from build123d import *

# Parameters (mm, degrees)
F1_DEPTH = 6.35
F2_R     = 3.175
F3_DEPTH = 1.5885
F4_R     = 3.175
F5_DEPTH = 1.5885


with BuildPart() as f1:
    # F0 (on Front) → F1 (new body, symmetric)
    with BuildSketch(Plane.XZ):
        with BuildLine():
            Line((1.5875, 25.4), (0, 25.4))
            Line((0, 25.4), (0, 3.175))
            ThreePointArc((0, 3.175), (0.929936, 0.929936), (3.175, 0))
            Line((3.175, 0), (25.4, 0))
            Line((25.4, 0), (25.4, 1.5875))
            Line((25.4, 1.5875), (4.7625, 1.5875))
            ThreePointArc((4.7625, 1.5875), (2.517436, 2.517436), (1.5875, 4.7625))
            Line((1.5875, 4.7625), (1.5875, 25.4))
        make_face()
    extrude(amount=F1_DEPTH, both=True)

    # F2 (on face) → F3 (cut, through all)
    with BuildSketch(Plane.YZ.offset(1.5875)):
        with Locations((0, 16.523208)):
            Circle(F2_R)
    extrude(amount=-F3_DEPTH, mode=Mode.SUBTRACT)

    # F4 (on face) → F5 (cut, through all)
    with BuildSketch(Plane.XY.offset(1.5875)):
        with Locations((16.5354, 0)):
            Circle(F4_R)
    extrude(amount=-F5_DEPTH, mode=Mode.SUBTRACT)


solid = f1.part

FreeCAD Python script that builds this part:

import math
import FreeCAD as App
import Part
import Sketcher
from FreeCAD import Vector
Q = App.Units.Quantity

doc = App.newDocument("Part")
body = doc.addObject("PartDesign::Body", "Body")

# Sketch on XZ plane
sketch1 = body.newObject("Sketcher::SketchObject", "Sketch")
sketch1.AttachmentSupport = (doc.getObject("XZ_Plane"), [""])
sketch1.MapMode = "FlatFace"
sketch1.addGeometry(Part.LineSegment(Vector(1.6, 25.4, 0), Vector(0, 25.4, 0)), False)
sketch1.addGeometry(Part.LineSegment(Vector(0, 25.4, 0), Vector(0, 3.2, 0)), False)
sketch1.addGeometry(Part.ArcOfCircle(Part.Circle(Vector(3.2, 3.2, 0), Vector(0, 0, 1), 3.2), math.radians(-180), math.radians(-90)), False)
sketch1.addGeometry(Part.LineSegment(Vector(3.2, 0, 0), Vector(25.4, 0, 0)), False)
sketch1.addGeometry(Part.LineSegment(Vector(25.4, 0, 0), Vector(25.4, 1.6, 0)), False)
sketch1.addGeometry(Part.LineSegment(Vector(25.4, 1.6, 0), Vector(4.8, 1.6, 0)), False)
sketch1.addGeometry(Part.ArcOfCircle(Part.Circle(Vector(4.8, 4.8, 0), Vector(0, 0, 1), 3.2), math.radians(-180), math.radians(-90)), False)
sketch1.addGeometry(Part.LineSegment(Vector(1.6, 4.8, 0), Vector(1.6, 25.4, 0)), False)
sketch1.addConstraint(Sketcher.Constraint("Coincident", 0, 2, 1, 1))
sketch1.addConstraint(Sketcher.Constraint("Tangent", 1, 2, 2, 1))
sketch1.addConstraint(Sketcher.Constraint("Tangent", 2, 2, 3, 1))
sketch1.addConstraint(Sketcher.Constraint("Coincident", 3, 2, 4, 1))
sketch1.addConstraint(Sketcher.Constraint("Coincident", 4, 2, 5, 1))
sketch1.addConstraint(Sketcher.Constraint("Tangent", 5, 2, 6, 2))
sketch1.addConstraint(Sketcher.Constraint("Tangent", 6, 1, 7, 1))
sketch1.addConstraint(Sketcher.Constraint("Coincident", 7, 2, 0, 1))
sketch1.addConstraint(Sketcher.Constraint("Horizontal", 0))
sketch1.addConstraint(Sketcher.Constraint("Vertical", 1))
sketch1.addConstraint(Sketcher.Constraint("Horizontal", 3))
sketch1.addConstraint(Sketcher.Constraint("Vertical", 4))
sketch1.addConstraint(Sketcher.Constraint("Horizontal", 5))
sketch1.addConstraint(Sketcher.Constraint("Vertical", 7))
sketch1.addConstraint(Sketcher.Constraint("Equal", 2, 6))
sketch1.addConstraint(Sketcher.Constraint("PointOnObject", 0, 2, -2))
sketch1.addConstraint(Sketcher.Constraint("PointOnObject", 2, 2, -1))
sketch1.addConstraint(Sketcher.Constraint("Equal", 3, 1))
sketch1.addConstraint(Sketcher.Constraint("Equal", 0, 4))
sketch1.addConstraint(Sketcher.Constraint("DistanceY", -1, 1, 0, 2, Q("1 in")))
sketch1.addConstraint(Sketcher.Constraint("Radius", 2, Q("0.125 in")))
sketch1.addConstraint(Sketcher.Constraint("DistanceX", 0, 2, 0, 1, Q("0.0625 in")))
pad1 = body.newObject("PartDesign::Pad", "Pad")
pad1.Profile = sketch1
pad1.Length = Q("0.5 in")
pad1.Midplane = True

# Sketch on YZ plane
sketch2 = body.newObject("Sketcher::SketchObject", "Sketch001")
sketch2.AttachmentSupport = (doc.getObject("YZ_Plane"), [""])
sketch2.MapMode = "FlatFace"
sketch2.AttachmentOffset = App.Placement(Vector(0, 0, 0.0625 * 25.4), App.Rotation())
sketch2.addGeometry(Part.Circle(Vector(0, 16.5, 0), Vector(0, 0, 1), 3.2), False)
sketch2.addConstraint(Sketcher.Constraint("PointOnObject", 0, 3, -2))
sketch2.addConstraint(Sketcher.Constraint("Diameter", 0, Q("0.25 in")))
sketch2.addConstraint(Sketcher.Constraint("DistanceY", -1, 1, 0, 3, 16.523208))
pocket1 = body.newObject("PartDesign::Pocket", "Pocket")
pocket1.Profile = sketch2
pocket1.Type = "ThroughAll"

# Sketch on XY plane
sketch3 = body.newObject("Sketcher::SketchObject", "Sketch002")
sketch3.AttachmentSupport = (doc.getObject("XY_Plane"), [""])
sketch3.MapMode = "FlatFace"
sketch3.AttachmentOffset = App.Placement(Vector(0, 0, 0.0625 * 25.4), App.Rotation())
sketch3.addGeometry(Part.Circle(Vector(16.5, 0, 0), Vector(0, 0, 1), 3.2), False)
sketch3.addConstraint(Sketcher.Constraint("PointOnObject", 0, 3, -1))
sketch3.addConstraint(Sketcher.Constraint("Diameter", 0, Q("0.25 in")))
sketch3.addConstraint(Sketcher.Constraint("DistanceX", -1, 1, 0, 3, Q("0.651 in")))
pocket2 = body.newObject("PartDesign::Pocket", "Pocket001")
pocket2.Profile = sketch3
pocket2.Type = "ThroughAll"

doc.recompute()
